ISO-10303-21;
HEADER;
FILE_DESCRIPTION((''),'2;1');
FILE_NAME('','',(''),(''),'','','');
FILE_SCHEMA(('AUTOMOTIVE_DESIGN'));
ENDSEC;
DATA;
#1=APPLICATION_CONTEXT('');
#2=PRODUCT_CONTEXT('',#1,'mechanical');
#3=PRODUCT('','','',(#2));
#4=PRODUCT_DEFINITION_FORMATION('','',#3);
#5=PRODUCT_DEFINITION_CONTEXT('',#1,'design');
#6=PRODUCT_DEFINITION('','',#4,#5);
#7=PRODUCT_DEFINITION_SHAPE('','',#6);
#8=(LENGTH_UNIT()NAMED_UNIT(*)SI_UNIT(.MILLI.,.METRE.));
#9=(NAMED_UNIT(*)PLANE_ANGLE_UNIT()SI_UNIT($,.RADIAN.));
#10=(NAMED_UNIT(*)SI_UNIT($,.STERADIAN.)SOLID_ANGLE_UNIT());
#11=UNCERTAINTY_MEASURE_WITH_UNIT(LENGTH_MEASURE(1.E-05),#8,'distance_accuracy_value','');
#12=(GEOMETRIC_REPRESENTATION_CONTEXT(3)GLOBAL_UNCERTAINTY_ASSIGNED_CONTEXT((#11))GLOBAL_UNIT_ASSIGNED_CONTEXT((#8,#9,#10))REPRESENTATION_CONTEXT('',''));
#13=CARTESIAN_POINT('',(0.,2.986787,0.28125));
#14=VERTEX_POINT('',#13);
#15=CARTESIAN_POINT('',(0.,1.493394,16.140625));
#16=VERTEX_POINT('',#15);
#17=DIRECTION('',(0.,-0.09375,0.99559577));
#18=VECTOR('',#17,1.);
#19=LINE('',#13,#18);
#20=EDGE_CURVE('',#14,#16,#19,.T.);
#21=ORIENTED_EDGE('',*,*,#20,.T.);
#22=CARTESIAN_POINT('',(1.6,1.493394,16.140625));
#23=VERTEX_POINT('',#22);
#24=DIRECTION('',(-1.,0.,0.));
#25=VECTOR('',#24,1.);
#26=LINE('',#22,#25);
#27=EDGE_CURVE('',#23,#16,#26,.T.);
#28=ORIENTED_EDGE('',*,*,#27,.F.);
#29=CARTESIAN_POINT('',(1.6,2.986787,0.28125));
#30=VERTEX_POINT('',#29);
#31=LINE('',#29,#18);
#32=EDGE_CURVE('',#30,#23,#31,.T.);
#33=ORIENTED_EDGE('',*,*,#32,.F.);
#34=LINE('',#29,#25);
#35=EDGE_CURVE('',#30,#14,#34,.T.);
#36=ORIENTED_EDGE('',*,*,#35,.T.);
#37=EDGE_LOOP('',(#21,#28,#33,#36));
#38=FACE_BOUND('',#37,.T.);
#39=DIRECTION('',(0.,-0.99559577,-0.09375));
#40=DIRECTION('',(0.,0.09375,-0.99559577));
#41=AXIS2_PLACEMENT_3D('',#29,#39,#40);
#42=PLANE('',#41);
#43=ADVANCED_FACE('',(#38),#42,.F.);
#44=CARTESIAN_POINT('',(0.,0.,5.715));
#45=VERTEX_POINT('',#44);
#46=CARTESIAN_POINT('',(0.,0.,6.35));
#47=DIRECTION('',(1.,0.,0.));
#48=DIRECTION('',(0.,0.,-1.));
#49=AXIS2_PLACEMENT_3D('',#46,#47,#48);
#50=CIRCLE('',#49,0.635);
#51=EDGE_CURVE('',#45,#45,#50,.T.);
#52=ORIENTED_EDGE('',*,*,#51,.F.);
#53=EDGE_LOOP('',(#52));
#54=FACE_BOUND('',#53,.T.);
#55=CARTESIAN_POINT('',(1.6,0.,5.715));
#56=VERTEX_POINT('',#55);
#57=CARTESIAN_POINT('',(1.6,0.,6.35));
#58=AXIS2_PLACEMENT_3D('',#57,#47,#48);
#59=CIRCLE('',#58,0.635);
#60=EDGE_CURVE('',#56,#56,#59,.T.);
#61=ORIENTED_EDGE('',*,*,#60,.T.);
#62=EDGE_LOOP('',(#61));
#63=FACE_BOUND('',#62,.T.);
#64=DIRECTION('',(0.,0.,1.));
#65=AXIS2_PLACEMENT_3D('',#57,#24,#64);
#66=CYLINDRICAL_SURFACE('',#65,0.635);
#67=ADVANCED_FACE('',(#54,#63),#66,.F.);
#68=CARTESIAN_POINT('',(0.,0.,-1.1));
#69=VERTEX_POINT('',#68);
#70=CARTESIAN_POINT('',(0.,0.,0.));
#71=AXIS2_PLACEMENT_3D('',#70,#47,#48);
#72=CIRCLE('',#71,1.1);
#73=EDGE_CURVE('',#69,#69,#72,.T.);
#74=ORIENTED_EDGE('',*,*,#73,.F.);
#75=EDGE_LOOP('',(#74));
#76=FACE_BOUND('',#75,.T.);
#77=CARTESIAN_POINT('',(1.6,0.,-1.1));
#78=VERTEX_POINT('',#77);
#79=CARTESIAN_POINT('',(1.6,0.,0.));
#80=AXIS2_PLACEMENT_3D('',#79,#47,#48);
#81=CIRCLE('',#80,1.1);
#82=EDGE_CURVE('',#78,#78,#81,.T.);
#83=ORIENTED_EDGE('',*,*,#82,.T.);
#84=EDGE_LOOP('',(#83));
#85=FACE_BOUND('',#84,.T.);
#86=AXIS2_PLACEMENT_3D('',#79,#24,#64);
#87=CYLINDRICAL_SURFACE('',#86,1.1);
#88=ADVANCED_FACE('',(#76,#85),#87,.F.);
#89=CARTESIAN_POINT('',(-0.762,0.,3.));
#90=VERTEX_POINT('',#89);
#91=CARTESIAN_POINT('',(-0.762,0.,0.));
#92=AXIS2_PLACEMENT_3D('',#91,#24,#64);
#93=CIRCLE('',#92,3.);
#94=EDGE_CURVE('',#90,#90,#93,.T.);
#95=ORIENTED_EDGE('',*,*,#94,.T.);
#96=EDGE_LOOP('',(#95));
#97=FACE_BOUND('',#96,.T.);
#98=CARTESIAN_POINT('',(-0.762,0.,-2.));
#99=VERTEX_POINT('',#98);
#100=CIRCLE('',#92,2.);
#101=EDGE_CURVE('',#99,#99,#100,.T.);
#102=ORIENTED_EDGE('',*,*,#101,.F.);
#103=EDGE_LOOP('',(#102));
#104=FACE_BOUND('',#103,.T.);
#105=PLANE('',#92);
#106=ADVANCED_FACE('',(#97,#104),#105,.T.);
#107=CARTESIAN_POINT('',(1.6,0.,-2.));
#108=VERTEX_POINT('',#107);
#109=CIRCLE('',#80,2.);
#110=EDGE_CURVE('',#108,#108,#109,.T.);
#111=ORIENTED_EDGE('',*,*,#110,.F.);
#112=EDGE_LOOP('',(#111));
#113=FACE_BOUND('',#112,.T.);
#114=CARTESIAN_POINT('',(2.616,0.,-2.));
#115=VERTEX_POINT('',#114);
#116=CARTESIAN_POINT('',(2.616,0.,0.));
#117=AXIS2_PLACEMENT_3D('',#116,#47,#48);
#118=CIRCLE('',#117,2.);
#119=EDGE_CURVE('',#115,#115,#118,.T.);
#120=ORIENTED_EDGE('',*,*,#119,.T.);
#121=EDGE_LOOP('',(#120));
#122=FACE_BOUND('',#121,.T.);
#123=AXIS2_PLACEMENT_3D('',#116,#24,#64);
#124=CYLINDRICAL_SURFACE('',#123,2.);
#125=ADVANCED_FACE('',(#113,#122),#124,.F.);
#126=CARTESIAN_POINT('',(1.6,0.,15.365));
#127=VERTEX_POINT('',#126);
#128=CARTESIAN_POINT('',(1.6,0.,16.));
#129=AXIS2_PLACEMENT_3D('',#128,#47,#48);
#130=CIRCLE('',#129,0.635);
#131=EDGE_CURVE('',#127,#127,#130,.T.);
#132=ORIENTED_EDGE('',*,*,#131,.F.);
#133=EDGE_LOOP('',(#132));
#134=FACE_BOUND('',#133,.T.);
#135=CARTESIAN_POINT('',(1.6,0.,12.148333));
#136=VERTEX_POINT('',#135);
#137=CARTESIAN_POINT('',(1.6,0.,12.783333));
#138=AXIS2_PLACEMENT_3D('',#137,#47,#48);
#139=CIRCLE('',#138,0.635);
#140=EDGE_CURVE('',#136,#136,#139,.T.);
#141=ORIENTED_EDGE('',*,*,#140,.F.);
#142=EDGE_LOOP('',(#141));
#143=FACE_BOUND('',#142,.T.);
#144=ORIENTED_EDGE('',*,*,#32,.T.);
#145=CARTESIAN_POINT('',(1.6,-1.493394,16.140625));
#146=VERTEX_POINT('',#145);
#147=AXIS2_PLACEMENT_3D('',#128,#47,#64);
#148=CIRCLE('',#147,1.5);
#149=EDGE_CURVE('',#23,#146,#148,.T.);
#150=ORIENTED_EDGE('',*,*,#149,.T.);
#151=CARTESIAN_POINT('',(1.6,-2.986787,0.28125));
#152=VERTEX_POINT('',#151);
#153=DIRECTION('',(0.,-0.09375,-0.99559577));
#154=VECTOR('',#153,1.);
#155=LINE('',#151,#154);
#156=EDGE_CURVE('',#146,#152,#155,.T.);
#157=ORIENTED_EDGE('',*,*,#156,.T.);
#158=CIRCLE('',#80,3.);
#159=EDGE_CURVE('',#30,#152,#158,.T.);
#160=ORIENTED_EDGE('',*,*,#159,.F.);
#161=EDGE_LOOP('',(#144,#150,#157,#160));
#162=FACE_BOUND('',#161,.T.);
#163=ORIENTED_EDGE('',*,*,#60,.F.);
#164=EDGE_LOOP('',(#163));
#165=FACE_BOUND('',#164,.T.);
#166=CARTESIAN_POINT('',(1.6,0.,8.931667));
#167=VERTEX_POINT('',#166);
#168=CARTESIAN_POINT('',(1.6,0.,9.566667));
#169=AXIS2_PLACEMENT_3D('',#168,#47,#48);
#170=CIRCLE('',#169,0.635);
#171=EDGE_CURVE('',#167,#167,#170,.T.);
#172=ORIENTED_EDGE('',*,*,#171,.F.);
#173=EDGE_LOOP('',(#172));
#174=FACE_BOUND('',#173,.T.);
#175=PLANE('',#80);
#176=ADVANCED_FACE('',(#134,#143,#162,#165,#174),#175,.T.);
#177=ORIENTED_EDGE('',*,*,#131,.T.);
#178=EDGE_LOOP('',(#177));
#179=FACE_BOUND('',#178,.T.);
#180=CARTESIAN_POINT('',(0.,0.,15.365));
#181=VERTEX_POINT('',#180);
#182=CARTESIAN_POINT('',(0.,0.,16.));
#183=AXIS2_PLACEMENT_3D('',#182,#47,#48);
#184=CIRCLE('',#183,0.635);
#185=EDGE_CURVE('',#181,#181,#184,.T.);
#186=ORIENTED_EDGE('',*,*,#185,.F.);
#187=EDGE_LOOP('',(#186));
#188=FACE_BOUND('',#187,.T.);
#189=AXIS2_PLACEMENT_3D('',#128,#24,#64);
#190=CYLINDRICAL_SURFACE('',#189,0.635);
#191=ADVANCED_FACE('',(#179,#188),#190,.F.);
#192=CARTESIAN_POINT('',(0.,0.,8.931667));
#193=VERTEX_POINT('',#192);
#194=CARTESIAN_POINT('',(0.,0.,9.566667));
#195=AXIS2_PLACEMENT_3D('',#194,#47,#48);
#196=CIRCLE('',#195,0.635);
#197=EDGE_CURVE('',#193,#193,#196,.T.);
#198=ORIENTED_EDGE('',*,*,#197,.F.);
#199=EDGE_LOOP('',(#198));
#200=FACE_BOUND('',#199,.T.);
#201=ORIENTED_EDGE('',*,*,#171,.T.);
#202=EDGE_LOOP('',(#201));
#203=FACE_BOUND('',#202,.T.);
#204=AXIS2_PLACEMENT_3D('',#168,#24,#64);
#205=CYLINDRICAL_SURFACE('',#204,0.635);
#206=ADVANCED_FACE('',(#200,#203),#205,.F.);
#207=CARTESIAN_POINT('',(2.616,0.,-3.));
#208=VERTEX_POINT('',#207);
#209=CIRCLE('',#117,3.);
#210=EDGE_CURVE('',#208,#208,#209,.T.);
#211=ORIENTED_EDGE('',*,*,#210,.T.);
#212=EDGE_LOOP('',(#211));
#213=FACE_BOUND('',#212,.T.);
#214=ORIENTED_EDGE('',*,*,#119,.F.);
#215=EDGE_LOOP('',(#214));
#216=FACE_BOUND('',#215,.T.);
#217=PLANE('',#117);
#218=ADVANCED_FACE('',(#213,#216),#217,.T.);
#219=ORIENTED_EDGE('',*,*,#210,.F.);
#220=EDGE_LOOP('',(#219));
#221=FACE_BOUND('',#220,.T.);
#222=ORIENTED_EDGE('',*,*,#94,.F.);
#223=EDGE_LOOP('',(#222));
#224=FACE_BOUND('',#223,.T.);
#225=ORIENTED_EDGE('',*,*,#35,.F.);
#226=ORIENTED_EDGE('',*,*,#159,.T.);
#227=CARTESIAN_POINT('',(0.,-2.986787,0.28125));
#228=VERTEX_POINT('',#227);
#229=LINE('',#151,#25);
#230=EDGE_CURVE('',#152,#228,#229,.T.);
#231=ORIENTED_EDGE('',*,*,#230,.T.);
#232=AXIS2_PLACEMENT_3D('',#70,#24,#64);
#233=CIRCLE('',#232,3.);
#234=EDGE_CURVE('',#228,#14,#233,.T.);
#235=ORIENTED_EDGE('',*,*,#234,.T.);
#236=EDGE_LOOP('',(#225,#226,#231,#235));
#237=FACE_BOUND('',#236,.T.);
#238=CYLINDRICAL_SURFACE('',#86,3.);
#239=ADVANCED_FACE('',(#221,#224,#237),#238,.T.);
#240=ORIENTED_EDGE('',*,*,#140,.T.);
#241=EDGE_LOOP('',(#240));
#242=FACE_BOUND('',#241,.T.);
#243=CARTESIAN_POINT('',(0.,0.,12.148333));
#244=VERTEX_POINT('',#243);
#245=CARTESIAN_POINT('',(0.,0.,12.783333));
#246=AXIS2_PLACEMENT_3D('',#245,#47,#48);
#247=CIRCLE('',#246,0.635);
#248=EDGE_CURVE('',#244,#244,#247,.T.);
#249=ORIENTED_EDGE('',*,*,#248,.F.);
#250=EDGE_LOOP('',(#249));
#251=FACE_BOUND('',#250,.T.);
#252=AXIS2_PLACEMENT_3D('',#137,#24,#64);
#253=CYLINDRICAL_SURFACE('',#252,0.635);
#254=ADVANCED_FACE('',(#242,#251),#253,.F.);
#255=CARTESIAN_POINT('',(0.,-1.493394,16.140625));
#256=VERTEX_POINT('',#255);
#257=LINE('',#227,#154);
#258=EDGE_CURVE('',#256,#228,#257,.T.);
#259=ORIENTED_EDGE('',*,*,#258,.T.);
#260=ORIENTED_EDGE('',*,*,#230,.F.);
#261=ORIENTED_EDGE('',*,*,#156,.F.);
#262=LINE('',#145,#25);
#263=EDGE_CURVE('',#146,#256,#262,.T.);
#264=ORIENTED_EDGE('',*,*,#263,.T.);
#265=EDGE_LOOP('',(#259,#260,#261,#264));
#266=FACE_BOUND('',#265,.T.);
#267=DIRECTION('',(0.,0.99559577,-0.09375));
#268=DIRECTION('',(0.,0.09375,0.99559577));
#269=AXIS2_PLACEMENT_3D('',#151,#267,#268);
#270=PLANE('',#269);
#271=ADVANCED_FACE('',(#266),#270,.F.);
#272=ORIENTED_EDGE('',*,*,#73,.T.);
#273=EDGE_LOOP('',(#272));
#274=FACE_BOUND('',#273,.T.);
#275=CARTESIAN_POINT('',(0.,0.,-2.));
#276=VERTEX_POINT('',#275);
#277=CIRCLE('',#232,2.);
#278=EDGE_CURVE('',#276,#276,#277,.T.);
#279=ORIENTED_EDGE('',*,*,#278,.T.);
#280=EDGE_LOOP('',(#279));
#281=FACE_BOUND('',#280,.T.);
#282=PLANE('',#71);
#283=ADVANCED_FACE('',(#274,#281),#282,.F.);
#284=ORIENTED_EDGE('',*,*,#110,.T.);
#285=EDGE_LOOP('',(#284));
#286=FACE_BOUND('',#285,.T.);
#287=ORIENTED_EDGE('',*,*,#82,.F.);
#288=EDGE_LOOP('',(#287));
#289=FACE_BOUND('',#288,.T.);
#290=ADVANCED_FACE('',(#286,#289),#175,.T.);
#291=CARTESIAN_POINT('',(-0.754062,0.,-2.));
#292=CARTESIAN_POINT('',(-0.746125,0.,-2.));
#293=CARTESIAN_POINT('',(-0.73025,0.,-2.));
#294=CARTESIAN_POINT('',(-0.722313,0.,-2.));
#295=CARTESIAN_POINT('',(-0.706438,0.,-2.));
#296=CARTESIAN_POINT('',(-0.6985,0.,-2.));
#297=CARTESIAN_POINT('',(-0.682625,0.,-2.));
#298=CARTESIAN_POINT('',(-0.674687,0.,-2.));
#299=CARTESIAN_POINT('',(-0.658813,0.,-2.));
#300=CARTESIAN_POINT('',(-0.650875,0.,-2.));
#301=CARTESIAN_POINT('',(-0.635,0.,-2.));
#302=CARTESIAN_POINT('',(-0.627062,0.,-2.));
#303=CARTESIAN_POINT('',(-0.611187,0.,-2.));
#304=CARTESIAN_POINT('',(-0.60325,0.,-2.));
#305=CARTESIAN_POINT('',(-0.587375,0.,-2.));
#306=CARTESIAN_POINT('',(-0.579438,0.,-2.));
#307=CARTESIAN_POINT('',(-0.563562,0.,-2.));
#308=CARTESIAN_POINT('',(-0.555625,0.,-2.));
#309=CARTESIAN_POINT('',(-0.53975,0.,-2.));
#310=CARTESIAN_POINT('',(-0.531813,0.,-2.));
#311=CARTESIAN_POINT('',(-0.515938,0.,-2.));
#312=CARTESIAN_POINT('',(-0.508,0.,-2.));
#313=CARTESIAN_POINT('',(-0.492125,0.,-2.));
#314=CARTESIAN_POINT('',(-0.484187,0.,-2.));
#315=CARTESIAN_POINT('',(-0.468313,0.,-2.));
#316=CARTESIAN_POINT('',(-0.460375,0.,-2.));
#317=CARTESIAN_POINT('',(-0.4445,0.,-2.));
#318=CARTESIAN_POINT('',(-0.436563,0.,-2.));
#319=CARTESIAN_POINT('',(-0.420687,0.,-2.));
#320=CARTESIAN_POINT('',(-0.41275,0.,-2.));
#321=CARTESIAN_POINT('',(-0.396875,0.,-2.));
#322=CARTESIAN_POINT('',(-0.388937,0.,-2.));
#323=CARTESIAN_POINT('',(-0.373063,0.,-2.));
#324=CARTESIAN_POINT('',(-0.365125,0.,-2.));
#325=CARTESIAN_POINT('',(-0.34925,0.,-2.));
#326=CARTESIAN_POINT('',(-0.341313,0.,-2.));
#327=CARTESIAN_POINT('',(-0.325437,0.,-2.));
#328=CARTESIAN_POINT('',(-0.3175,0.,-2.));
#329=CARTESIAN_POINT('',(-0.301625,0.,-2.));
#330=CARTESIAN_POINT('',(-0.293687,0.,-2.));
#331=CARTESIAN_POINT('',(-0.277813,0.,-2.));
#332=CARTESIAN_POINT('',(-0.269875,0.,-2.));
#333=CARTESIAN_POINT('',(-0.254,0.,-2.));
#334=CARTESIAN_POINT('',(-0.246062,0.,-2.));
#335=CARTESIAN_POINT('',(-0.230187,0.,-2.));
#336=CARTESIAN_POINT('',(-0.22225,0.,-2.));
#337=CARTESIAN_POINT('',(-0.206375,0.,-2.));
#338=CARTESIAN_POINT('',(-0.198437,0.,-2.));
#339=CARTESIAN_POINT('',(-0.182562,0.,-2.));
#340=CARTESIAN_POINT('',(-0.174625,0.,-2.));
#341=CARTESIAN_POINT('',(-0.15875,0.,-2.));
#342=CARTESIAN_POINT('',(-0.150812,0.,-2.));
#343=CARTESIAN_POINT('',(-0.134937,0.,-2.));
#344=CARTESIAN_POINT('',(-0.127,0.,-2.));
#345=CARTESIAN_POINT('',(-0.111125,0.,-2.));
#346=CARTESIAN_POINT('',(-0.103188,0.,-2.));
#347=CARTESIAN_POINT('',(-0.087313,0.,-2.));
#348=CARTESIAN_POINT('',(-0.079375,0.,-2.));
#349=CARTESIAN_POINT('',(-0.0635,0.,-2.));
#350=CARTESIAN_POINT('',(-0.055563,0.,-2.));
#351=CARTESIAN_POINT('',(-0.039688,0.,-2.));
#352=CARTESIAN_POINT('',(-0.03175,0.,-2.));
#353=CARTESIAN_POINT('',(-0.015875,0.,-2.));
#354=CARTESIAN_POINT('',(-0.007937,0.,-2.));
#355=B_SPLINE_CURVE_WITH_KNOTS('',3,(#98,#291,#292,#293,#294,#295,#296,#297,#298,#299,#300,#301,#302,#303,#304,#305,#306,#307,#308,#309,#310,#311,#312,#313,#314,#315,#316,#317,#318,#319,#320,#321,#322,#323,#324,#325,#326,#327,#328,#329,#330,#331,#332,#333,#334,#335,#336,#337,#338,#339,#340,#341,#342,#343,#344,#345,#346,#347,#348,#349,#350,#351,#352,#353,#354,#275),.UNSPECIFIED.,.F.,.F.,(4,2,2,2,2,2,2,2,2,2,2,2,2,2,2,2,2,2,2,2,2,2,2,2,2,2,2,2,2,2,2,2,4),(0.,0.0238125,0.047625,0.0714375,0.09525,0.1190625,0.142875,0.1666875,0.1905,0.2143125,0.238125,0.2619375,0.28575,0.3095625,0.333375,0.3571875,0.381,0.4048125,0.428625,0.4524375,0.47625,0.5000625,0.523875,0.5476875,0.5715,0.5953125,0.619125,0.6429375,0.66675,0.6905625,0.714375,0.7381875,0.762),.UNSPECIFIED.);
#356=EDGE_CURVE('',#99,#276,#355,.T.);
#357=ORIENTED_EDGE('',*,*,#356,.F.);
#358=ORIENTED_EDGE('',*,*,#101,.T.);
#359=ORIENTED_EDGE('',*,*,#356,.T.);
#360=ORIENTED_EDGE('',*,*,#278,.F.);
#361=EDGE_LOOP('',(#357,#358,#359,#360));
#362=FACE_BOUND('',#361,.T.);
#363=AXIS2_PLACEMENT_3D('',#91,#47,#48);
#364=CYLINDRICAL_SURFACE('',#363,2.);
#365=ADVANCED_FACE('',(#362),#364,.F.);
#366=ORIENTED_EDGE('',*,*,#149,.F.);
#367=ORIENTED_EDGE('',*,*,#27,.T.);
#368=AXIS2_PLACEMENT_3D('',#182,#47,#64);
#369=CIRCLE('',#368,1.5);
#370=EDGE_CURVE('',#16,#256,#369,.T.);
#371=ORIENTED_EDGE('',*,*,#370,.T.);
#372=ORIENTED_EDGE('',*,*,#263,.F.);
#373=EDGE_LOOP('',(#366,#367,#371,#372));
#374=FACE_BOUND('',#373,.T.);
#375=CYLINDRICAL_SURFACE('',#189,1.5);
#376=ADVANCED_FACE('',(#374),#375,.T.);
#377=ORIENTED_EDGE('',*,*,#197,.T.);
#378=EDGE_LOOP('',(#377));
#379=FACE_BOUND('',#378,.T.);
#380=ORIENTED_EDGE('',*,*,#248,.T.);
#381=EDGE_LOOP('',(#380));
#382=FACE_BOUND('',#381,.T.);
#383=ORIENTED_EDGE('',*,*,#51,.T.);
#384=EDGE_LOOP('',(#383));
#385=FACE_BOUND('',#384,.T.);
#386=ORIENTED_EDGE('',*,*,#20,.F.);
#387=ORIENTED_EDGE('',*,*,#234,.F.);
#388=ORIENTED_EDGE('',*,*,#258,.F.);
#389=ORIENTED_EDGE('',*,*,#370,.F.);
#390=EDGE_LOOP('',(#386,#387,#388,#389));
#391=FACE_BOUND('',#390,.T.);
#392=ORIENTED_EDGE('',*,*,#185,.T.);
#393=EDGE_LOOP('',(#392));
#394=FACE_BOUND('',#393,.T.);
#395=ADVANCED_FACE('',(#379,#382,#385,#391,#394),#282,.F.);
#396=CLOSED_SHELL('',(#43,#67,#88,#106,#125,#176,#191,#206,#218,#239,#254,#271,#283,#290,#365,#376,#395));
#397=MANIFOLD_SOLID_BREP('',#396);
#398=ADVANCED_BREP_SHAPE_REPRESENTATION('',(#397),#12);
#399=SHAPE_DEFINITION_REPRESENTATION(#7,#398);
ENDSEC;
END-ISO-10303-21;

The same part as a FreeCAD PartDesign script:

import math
import FreeCAD as App
import Part
import Sketcher

doc = App.newDocument("Part")
params = doc.addObject("Spreadsheet::Sheet", "Params")
for row, (alias, value) in enumerate([
    ("sketch1_radius", "3 mm"),
    ("sketch1_diameter", "2.2 mm"),
    ("sketch1_radius2", "1.5 mm"),
    ("sketch1_diameter2", "1.27 mm"),
    ("pad1_length", "1.6 mm"),
    ("sketch2_diameter", "6 mm"),
    ("sketch2_diameter2", "4 mm"),
    ("pad2_length", "1.016 mm"),
    ("sketch3_diameter", "6 mm"),
    ("sketch3_diameter2", "4 mm"),
    ("pad3_length", "0.762 mm"),
], start=1):
    params.set(f"A{row}", alias)
    params.set(f"B{row}", "=" + value)
    params.setAlias(f"B{row}", alias)

body = doc.addObject("PartDesign::Body", "Body")

# Sketch on YZ plane
sketch1 = body.newObject("Sketcher::SketchObject", "Sketch")
sketch1.AttachmentSupport = (doc.getObject("YZ_Plane"), [""])
sketch1.MapMode = "FlatFace"
sketch1.addGeometry([
    Part.LineSegment(App.Vector(-1.5, 16.1, 0), App.Vector(-3, 0.3, 0)),  # 0
    Part.ArcOfCircle(Part.Circle(App.Vector(0, 0, 0), App.Vector(0, 0, 1), 3), math.radians(175), math.radians(365)),  # 1
    Part.LineSegment(App.Vector(3, 0.3, 0), App.Vector(1.5, 16.1, 0)),  # 2
    Part.ArcOfCircle(Part.Circle(App.Vector(0, 16, 0), App.Vector(0, 0, 1), 1.5), math.radians(5), math.radians(175)),  # 3
    Part.Circle(App.Vector(0, 0, 0), App.Vector(0, 0, 1), 1.1),  # 4
    Part.Circle(App.Vector(0, 6.3, 0), App.Vector(0, 0, 1), 0.6),  # 5
    Part.Circle(App.Vector(0, 9.6, 0), App.Vector(0, 0, 1), 0.6),  # 6
    Part.Circle(App.Vector(0, 12.8, 0), App.Vector(0, 0, 1), 0.6),  # 7
    Part.Circle(App.Vector(0, 16, 0), App.Vector(0, 0, 1), 0.6),  # 8
], False)
sketch1.addConstraint([
    Sketcher.Constraint("Tangent", 0, 2, 1, 1),
    Sketcher.Constraint("Tangent", 1, 2, 2, 1),
    Sketcher.Constraint("Tangent", 2, 2, 3, 1),
    Sketcher.Constraint("Tangent", 3, 2, 0, 1),
    Sketcher.Constraint("Coincident", 1, 3, -1, 1),
    Sketcher.Constraint("Coincident", 4, 3, -1, 1),
    Sketcher.Constraint("Coincident", 8, 3, 3, 3),
    Sketcher.Constraint("Equal", 5, 6),
    Sketcher.Constraint("Equal", 6, 7),
    Sketcher.Constraint("Equal", 7, 8),
    Sketcher.Constraint("PointOnObject", 3, 3, -2),
    Sketcher.Constraint("PointOnObject", 5, 3, -2),
    Sketcher.Constraint("PointOnObject", 6, 3, -2),
    Sketcher.Constraint("PointOnObject", 7, 3, -2),
    Sketcher.Constraint("Radius", 1, 3.0),
    Sketcher.Constraint("Diameter", 4, 2.2),
    Sketcher.Constraint("Radius", 3, 1.5),
    Sketcher.Constraint("Diameter", 5, 1.27),
    Sketcher.Constraint("DistanceY", -1, 1, 3, 3, 16.0),
    Sketcher.Constraint("DistanceY", -1, 1, 5, 3, 6.35),
    Sketcher.Constraint("DistanceY", 7, 3, 2, 2, 3.357292),
    Sketcher.Constraint("DistanceY", 6, 3, 2, 2, 6.573958),
])
sketch1.setExpression("Constraints[14]", "Params.sketch1_radius")
sketch1.setExpression("Constraints[15]", "Params.sketch1_diameter")
sketch1.setExpression("Constraints[16]", "Params.sketch1_radius2")
sketch1.setExpression("Constraints[17]", "Params.sketch1_diameter2")
pad1 = body.newObject("PartDesign::Pad", "Pad")
pad1.Profile = sketch1
pad1.setExpression("Length", "Params.pad1_length")

# Sketch on YZ plane
sketch2 = body.newObject("Sketcher::SketchObject", "Sketch001")
sketch2.AttachmentSupport = (doc.getObject("YZ_Plane"), [""])
sketch2.MapMode = "FlatFace"
sketch2.AttachmentOffset = App.Placement(App.Vector(0, 0, 1.6), App.Rotation())
sketch2.addGeometry([
    Part.Circle(App.Vector(0, 0, 0), App.Vector(0, 0, 1), 3),
    Part.Circle(App.Vector(0, 0, 0), App.Vector(0, 0, 1), 2),
], False)
sketch2.addConstraint([
    Sketcher.Constraint("Coincident", 0, 3, -1, 1),
    Sketcher.Constraint("Coincident", 1, 3, -1, 1),
    Sketcher.Constraint("Diameter", 0, 6.0),
    Sketcher.Constraint("Diameter", 1, 4.0),
])
sketch2.setExpression("Constraints[2]", "Params.sketch2_diameter")
sketch2.setExpression("Constraints[3]", "Params.sketch2_diameter2")
pad2 = body.newObject("PartDesign::Pad", "Pad001")
pad2.Profile = sketch2
pad2.setExpression("Length", "Params.pad2_length")

# Sketch on YZ plane
sketch3 = body.newObject("Sketcher::SketchObject", "Sketch002")
sketch3.AttachmentSupport = (doc.getObject("YZ_Plane"), [""])
sketch3.MapMode = "FlatFace"
sketch3.AttachmentOffset = App.Placement(App.Vector(0, 0, -0.762), App.Rotation())
sketch3.addGeometry([
    Part.Circle(App.Vector(0, 0, 0), App.Vector(0, 0, 1), 3),
    Part.Circle(App.Vector(0, 0, 0), App.Vector(0, 0, 1), 2),
], False)
sketch3.addConstraint([
    Sketcher.Constraint("Coincident", 0, 3, -1, 1),
    Sketcher.Constraint("Coincident", 1, 3, -1, 1),
    Sketcher.Constraint("Diameter", 0, 6.0),
    Sketcher.Constraint("Diameter", 1, 4.0),
])
sketch3.setExpression("Constraints[2]", "Params.sketch3_diameter")
sketch3.setExpression("Constraints[3]", "Params.sketch3_diameter2")
pad3 = body.newObject("PartDesign::Pad", "Pad002")
pad3.Profile = sketch3
pad3.setExpression("Length", "Params.pad3_length")

doc.recompute()
